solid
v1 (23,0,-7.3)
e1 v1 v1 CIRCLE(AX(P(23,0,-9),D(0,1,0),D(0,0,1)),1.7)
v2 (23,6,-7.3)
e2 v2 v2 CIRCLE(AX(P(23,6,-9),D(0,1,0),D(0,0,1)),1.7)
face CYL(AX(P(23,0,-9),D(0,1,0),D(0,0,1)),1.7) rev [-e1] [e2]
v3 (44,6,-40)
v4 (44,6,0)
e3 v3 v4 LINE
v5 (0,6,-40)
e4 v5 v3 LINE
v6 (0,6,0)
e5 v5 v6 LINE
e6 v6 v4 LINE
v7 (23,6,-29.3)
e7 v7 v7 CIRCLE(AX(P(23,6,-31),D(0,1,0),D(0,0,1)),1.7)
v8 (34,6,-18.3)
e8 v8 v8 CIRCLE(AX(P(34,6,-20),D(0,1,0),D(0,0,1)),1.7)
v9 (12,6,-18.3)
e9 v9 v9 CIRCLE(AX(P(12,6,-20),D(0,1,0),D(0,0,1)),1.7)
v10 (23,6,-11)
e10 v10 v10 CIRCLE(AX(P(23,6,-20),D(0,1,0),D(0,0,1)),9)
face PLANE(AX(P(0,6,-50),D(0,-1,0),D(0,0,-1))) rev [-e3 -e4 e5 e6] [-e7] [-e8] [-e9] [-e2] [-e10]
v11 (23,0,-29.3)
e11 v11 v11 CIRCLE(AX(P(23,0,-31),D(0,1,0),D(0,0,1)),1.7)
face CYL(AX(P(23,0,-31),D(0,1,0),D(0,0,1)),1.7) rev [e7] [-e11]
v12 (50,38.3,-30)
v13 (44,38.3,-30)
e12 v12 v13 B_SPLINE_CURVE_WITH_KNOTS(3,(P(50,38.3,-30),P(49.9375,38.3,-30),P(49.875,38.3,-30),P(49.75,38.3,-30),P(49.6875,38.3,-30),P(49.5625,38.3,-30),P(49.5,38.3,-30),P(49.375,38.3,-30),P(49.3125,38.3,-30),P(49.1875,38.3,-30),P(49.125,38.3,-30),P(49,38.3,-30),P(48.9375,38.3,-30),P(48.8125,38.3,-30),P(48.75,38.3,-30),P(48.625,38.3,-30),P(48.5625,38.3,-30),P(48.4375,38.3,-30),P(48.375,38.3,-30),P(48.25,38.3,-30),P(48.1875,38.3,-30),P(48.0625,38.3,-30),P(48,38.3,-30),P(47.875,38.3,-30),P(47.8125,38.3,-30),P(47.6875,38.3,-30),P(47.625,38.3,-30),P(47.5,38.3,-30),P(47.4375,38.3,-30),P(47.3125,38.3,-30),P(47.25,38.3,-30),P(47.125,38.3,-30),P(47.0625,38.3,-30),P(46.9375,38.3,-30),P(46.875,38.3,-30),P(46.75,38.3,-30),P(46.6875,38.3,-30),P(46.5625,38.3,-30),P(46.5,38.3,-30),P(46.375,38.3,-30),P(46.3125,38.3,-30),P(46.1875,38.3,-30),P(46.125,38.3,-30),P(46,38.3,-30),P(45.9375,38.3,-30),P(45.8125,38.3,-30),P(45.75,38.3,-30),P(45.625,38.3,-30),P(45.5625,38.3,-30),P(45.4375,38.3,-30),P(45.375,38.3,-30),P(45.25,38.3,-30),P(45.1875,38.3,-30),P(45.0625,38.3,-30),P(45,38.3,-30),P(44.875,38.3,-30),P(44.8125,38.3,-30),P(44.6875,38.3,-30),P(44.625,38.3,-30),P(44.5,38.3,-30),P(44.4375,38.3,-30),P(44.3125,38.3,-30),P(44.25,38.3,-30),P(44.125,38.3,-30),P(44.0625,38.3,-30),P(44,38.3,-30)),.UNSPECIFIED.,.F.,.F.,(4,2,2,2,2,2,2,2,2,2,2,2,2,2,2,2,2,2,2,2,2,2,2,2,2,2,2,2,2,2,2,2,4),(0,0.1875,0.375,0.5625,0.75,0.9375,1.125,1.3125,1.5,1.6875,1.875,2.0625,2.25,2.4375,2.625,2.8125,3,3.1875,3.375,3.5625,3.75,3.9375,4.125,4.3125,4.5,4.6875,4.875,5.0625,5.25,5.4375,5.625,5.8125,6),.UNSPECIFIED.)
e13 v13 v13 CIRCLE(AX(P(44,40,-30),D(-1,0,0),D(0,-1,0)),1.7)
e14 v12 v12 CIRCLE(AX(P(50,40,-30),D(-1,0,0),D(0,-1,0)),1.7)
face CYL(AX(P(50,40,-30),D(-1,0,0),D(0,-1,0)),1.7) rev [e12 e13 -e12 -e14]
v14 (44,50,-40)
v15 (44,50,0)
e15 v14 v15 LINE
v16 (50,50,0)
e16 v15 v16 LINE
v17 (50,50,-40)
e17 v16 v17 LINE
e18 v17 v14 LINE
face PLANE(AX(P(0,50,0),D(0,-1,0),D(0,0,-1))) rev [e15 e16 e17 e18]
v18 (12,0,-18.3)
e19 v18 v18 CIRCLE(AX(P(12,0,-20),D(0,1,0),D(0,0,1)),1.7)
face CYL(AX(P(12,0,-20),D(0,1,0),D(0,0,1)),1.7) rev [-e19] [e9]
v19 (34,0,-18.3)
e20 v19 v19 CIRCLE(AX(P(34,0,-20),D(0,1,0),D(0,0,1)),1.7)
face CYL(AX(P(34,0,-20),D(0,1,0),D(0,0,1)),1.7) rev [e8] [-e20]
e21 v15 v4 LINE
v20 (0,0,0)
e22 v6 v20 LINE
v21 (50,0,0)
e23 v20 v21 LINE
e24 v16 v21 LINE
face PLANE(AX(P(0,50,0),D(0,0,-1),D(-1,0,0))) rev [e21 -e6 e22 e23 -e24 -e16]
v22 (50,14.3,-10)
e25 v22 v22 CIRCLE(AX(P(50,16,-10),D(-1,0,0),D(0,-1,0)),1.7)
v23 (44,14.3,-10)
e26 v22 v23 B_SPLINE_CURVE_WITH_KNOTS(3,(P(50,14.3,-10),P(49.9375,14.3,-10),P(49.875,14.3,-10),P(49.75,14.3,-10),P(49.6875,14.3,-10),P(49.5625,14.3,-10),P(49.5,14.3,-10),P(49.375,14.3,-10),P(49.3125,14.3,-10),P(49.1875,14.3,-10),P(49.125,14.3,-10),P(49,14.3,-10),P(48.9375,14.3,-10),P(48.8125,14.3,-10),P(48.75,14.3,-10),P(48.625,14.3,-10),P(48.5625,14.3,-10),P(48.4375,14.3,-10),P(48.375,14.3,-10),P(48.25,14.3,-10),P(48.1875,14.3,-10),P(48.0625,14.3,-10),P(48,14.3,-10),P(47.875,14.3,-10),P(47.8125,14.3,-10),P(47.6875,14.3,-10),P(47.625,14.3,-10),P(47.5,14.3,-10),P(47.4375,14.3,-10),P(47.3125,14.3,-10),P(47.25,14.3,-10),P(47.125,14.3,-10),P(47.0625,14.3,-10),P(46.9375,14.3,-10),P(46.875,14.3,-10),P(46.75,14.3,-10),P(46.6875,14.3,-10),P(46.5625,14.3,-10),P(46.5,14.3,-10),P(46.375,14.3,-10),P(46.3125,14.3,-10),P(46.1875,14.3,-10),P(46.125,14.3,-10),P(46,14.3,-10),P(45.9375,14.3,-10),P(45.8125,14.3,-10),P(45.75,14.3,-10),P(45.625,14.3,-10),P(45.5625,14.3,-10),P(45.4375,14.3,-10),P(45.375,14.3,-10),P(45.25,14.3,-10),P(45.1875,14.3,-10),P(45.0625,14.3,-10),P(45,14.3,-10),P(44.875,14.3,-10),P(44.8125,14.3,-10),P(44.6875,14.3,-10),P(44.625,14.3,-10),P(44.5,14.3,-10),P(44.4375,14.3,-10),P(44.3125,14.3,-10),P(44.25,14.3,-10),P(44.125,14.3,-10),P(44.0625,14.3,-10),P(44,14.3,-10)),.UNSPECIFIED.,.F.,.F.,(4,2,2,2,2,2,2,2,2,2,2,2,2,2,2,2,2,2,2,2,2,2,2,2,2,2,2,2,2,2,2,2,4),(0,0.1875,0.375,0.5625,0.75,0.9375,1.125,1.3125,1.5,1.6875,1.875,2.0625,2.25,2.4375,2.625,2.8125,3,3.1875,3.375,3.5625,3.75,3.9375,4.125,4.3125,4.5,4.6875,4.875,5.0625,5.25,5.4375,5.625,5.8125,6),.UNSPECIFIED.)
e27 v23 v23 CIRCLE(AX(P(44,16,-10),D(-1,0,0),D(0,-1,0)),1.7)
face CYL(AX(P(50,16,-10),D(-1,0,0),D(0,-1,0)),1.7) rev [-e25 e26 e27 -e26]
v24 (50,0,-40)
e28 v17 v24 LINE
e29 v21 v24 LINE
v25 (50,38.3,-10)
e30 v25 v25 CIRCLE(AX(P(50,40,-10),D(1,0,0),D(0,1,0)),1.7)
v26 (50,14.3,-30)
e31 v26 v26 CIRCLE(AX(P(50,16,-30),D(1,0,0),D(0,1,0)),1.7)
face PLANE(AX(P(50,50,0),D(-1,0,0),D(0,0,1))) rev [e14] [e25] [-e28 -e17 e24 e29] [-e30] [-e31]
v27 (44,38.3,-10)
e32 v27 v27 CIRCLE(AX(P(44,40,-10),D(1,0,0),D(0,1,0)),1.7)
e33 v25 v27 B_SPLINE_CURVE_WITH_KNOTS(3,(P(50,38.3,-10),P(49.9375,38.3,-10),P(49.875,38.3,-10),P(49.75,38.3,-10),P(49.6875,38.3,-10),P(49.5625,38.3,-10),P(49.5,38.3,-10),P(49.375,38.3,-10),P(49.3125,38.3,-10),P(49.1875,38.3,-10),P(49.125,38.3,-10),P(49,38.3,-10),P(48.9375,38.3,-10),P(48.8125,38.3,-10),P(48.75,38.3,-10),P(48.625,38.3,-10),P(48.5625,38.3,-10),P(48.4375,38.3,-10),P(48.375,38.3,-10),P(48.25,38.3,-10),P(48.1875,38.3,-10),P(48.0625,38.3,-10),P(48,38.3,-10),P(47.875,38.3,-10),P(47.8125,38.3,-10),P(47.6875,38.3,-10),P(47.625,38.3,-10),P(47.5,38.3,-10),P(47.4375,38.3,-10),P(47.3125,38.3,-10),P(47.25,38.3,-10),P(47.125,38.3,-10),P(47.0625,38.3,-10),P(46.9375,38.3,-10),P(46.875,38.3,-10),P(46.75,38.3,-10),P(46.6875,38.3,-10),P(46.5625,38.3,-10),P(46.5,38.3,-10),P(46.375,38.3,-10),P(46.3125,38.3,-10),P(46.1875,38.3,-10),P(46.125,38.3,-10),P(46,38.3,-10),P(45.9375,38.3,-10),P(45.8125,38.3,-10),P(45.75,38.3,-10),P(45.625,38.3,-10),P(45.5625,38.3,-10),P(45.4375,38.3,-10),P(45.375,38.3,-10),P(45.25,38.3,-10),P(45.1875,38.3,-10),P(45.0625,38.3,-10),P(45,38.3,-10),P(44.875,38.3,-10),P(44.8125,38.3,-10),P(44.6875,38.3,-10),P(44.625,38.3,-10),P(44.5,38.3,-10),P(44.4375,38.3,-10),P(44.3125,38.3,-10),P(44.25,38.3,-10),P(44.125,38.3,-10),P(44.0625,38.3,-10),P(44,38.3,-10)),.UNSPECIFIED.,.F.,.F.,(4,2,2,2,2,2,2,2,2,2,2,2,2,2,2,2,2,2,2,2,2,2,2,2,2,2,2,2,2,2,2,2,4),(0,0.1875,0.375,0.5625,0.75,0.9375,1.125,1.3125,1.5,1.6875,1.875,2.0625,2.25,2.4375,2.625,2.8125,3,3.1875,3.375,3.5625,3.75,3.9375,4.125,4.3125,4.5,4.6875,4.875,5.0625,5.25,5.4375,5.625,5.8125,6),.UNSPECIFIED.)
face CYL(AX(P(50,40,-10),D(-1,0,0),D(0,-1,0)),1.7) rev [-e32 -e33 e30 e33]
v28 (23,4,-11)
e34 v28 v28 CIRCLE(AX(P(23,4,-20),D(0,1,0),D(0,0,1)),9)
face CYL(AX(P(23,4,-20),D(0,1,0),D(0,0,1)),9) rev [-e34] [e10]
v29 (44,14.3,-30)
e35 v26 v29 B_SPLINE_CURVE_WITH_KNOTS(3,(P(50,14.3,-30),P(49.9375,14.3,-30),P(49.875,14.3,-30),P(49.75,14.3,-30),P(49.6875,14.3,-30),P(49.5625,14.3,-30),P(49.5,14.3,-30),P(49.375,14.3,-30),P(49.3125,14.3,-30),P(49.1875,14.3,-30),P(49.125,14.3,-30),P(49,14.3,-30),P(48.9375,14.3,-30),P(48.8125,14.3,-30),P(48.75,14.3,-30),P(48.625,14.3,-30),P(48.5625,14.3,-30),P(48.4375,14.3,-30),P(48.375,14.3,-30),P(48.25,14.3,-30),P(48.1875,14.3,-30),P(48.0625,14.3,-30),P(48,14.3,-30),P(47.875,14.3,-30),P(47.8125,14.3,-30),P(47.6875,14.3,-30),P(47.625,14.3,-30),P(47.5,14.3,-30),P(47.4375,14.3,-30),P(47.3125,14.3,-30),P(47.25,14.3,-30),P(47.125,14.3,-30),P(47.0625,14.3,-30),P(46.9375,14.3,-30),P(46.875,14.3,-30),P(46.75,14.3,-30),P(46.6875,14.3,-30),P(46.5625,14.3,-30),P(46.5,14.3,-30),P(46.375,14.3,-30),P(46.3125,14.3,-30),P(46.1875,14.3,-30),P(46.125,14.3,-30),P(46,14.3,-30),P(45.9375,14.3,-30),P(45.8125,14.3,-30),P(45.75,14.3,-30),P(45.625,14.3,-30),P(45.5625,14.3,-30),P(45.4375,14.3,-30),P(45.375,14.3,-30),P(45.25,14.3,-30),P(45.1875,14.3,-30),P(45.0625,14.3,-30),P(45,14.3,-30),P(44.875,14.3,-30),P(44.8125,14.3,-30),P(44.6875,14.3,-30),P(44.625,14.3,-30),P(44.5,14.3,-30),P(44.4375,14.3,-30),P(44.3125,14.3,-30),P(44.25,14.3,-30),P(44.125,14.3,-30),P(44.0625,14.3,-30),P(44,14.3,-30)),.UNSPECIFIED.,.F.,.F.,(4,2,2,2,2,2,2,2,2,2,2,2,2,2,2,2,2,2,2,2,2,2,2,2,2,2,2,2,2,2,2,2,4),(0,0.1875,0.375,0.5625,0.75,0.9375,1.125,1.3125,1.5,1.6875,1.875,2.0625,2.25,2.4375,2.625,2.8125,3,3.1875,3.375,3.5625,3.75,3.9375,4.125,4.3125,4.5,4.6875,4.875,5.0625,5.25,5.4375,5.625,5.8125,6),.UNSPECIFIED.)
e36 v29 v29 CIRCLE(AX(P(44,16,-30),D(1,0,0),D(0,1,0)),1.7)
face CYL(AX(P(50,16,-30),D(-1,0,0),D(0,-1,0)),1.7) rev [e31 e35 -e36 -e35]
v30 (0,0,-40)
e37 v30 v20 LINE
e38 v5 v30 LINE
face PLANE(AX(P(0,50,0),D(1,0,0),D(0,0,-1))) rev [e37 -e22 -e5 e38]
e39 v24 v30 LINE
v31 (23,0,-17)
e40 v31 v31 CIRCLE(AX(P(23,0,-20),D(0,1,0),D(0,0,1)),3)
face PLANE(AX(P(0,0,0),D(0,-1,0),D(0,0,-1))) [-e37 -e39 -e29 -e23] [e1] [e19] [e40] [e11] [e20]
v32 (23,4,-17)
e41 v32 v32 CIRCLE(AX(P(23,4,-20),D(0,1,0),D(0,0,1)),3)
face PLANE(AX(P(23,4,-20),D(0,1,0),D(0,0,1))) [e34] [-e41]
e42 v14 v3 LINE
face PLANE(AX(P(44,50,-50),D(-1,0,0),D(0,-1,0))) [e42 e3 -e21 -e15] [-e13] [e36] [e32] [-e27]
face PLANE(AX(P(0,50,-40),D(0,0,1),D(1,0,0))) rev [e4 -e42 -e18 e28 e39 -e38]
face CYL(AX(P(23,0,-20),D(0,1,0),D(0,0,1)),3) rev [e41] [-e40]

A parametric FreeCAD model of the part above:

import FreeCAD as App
import Part
import Sketcher


def add_polygon(sketch, points):
    """Adds a closed chain of lines whose ends are joined by coincident constraints."""
    first, n = sketch.GeometryCount, len(points)
    for a, b in zip(points, points[1:] + points[:1]):
        sketch.addGeometry(Part.LineSegment(App.Vector(*a, 0), App.Vector(*b, 0)), False)
    for i in range(n):
        sketch.addConstraint(Sketcher.Constraint("Coincident", first + i, 2, first + (i + 1) % n, 1))

doc = App.newDocument("Part")
params = doc.addObject("Spreadsheet::Sheet", "Params")
for row, (alias, value) in enumerate([
    ("sketch1_width", "50 mm"),
    ("sketch1_height", "40 mm"),
    ("pad1_length", "50 mm"),
    ("sketch2_width", "44 mm"),
    ("pocket1_length", "50 mm"),
    ("sketch3_diameter", "3.4 mm"),
    ("sketch4_diameter", "18 mm"),
    ("pocket3_length", "2 mm"),
    ("sketch5_diameter", "6 mm"),
    ("sketch6_diameter", "3.4 mm"),
], start=1):
    params.set(f"A{row}", alias)
    params.set(f"B{row}", "=" + value)
    params.setAlias(f"B{row}", alias)

body = doc.addObject("PartDesign::Body", "Body")

sketch1 = body.newObject("Sketcher::SketchObject", "Sketch")
sketch1.AttachmentSupport = (doc.getObject("XZ_Plane"), [""])
sketch1.MapMode = "FlatFace"
add_polygon(sketch1, [(0, -40), (0, 0), (50, 0), (50, -40)])
sketch1.addConstraint([
    Sketcher.Constraint("Vertical", 0),
    Sketcher.Constraint("Horizontal", 1),
    Sketcher.Constraint("Vertical", 2),
    Sketcher.Constraint("Horizontal", 3),
    Sketcher.Constraint("Coincident", 0, 2, -1, 1),
    Sketcher.Constraint("DistanceX", 1, 1, 1, 2, 50.0),
    Sketcher.Constraint("DistanceY", 0, 1, 0, 2, 40.0),
])
sketch1.setExpression("Constraints[9]", "Params.sketch1_width")
sketch1.setExpression("Constraints[10]", "Params.sketch1_height")
pad1 = body.newObject("PartDesign::Pad", "Pad")
pad1.Profile = sketch1
pad1.setExpression("Length", "Params.pad1_length")
pad1.Reversed = True

sketch2 = body.newObject("Sketcher::SketchObject", "Sketch001")
sketch2.AttachmentSupport = (doc.getObject("XY_Plane"), [""])
sketch2.MapMode = "FlatFace"
add_polygon(sketch2, [(0, 50), (0, 6), (44, 6), (44, 50)])
sketch2.addConstraint([
    Sketcher.Constraint("Vertical", 0),
    Sketcher.Constraint("Horizontal", 1),
    Sketcher.Constraint("Vertical", 2),
    Sketcher.Constraint("Horizontal", 3),
    Sketcher.Constraint("PointOnObject", 0, 2, -2),
    Sketcher.Constraint("Equal", 3, 0),
    Sketcher.Constraint("DistanceX", 1, 1, 1, 2, 44.0),
    Sketcher.Constraint("DistanceY", -1, 1, 0, 2, 6.0),
])
sketch2.setExpression("Constraints[10]", "Params.sketch2_width")
pocket1 = body.newObject("PartDesign::Pocket", "Pocket")
pocket1.Profile = sketch2
pocket1.setExpression("Length", "Params.pocket1_length")

sketch3 = body.newObject("Sketcher::SketchObject", "Sketch002")
sketch3.AttachmentSupport = (doc.getObject("YZ_Plane"), [""])
sketch3.MapMode = "FlatFace"
sketch3.AttachmentOffset = App.Placement(App.Vector(0, 0, 44), App.Rotation())
sketch3.addGeometry([
    Part.Circle(App.Vector(40, -30, 0), App.Vector(0, 0, 1), 1.7),
    Part.Circle(App.Vector(40, -10, 0), App.Vector(0, 0, 1), 1.7),
    Part.Circle(App.Vector(16, -10, 0), App.Vector(0, 0, 1), 1.7),
    Part.Circle(App.Vector(16, -30, 0), App.Vector(0, 0, 1), 1.7),
], False)
sketch3.addConstraint([
    Sketcher.Constraint("Equal", 0, 1),
    Sketcher.Constraint("Equal", 1, 2),
    Sketcher.Constraint("Equal", 2, 3),
    Sketcher.Constraint("Horizontal", 1, 3, 2, 3),
    Sketcher.Constraint("Horizontal", 0, 3, 3, 3),
    Sketcher.Constraint("Vertical", 0, 3, 1, 3),
    Sketcher.Constraint("Vertical", 2, 3, 3, 3),
    Sketcher.Constraint("Diameter", 0, 3.4),
    Sketcher.Constraint("DistanceX", -1, 1, 0, 3, 40.0),
    Sketcher.Constraint("DistanceY", 0, 3, -1, 1, 30.0),
    Sketcher.Constraint("DistanceY", 1, 3, -1, 1, 10.0),
    Sketcher.Constraint("DistanceX", -1, 1, 2, 3, 16.0),
])
sketch3.setExpression("Constraints[7]", "Params.sketch3_diameter")
pocket2 = body.newObject("PartDesign::Pocket", "Pocket001")
pocket2.Profile = sketch3
pocket2.Type = "ThroughAll"
pocket2.Reversed = True

sketch4 = body.newObject("Sketcher::SketchObject", "Sketch003")
sketch4.AttachmentSupport = (doc.getObject("XZ_Plane"), [""])
sketch4.MapMode = "FlatFace"
sketch4.AttachmentOffset = App.Placement(App.Vector(0, 0, -6), App.Rotation())
sketch4.addGeometry(Part.Circle(App.Vector(23, -20, 0), App.Vector(0, 0, 1), 9), False)
sketch4.addConstraint([
    Sketcher.Constraint("Diameter", 0, 18.0),
    Sketcher.Constraint("DistanceX", -1, 1, 0, 3, 23.0),
    Sketcher.Constraint("DistanceY", 0, 3, -1, 1, 20.0),
])
sketch4.setExpression("Constraints[0]", "Params.sketch4_diameter")
pocket3 = body.newObject("PartDesign::Pocket", "Pocket002")
pocket3.Profile = sketch4
pocket3.setExpression("Length", "Params.pocket3_length")
pocket3.Reversed = True

sketch5 = body.newObject("Sketcher::SketchObject", "Sketch004")
sketch5.AttachmentSupport = (doc.getObject("XZ_Plane"), [""])
sketch5.MapMode = "FlatFace"
sketch5.AttachmentOffset = App.Placement(App.Vector(0, 0, -4), App.Rotation())
sketch5.addGeometry(Part.Circle(App.Vector(23, -20, 0), App.Vector(0, 0, 1), 3), False)
sketch5.addConstraint([
    Sketcher.Constraint("Diameter", 0, 6.0),
    Sketcher.Constraint("DistanceX", -1, 1, 0, 3, 23.0),
    Sketcher.Constraint("DistanceY", 0, 3, -1, 1, 20.0),
])
sketch5.setExpression("Constraints[0]", "Params.sketch5_diameter")
pocket4 = body.newObject("PartDesign::Pocket", "Pocket003")
pocket4.Profile = sketch5
pocket4.Type = "ThroughAll"
pocket4.Reversed = True

sketch6 = body.newObject("Sketcher::SketchObject", "Sketch005")
sketch6.AttachmentSupport = (doc.getObject("XZ_Plane"), [""])
sketch6.MapMode = "FlatFace"
sketch6.AttachmentOffset = App.Placement(App.Vector(0, 0, -6), App.Rotation())
sketch6.addGeometry([
    Part.Circle(App.Vector(12, -20, 0), App.Vector(0, 0, 1), 1.7),
    Part.Circle(App.Vector(23, -31, 0), App.Vector(0, 0, 1), 1.7),
    Part.Circle(App.Vector(34, -20, 0), App.Vector(0, 0, 1), 1.7),
    Part.Circle(App.Vector(23, -9, 0), App.Vector(0, 0, 1), 1.7),
], False)
sketch6.addConstraint([
    Sketcher.Constraint("Equal", 0, 1),
    Sketcher.Constraint("Equal", 1, 2),
    Sketcher.Constraint("Equal", 2, 3),
    Sketcher.Constraint("Horizontal", 0, 3, 2, 3),
    Sketcher.Constraint("Vertical", 1, 3, 3, 3),
    Sketcher.Constraint("Diameter", 0, 3.4),
    Sketcher.Constraint("DistanceX", -1, 1, 0, 3, 12.0),
    Sketcher.Constraint("DistanceY", 0, 3, -1, 1, 20.0),
    Sketcher.Constraint("DistanceX", -1, 1, 1, 3, 23.0),
    Sketcher.Constraint("DistanceY", 1, 3, -1, 1, 31.0),
    Sketcher.Constraint("DistanceX", -1, 1, 2, 3, 34.0),
    Sketcher.Constraint("DistanceY", 3, 3, -1, 1, 9.0),
])
sketch6.setExpression("Constraints[5]", "Params.sketch6_diameter")
pocket5 = body.newObject("PartDesign::Pocket", "Pocket004")
pocket5.Profile = sketch6
pocket5.Type = "ThroughAll"
pocket5.Reversed = True

doc.recompute()
